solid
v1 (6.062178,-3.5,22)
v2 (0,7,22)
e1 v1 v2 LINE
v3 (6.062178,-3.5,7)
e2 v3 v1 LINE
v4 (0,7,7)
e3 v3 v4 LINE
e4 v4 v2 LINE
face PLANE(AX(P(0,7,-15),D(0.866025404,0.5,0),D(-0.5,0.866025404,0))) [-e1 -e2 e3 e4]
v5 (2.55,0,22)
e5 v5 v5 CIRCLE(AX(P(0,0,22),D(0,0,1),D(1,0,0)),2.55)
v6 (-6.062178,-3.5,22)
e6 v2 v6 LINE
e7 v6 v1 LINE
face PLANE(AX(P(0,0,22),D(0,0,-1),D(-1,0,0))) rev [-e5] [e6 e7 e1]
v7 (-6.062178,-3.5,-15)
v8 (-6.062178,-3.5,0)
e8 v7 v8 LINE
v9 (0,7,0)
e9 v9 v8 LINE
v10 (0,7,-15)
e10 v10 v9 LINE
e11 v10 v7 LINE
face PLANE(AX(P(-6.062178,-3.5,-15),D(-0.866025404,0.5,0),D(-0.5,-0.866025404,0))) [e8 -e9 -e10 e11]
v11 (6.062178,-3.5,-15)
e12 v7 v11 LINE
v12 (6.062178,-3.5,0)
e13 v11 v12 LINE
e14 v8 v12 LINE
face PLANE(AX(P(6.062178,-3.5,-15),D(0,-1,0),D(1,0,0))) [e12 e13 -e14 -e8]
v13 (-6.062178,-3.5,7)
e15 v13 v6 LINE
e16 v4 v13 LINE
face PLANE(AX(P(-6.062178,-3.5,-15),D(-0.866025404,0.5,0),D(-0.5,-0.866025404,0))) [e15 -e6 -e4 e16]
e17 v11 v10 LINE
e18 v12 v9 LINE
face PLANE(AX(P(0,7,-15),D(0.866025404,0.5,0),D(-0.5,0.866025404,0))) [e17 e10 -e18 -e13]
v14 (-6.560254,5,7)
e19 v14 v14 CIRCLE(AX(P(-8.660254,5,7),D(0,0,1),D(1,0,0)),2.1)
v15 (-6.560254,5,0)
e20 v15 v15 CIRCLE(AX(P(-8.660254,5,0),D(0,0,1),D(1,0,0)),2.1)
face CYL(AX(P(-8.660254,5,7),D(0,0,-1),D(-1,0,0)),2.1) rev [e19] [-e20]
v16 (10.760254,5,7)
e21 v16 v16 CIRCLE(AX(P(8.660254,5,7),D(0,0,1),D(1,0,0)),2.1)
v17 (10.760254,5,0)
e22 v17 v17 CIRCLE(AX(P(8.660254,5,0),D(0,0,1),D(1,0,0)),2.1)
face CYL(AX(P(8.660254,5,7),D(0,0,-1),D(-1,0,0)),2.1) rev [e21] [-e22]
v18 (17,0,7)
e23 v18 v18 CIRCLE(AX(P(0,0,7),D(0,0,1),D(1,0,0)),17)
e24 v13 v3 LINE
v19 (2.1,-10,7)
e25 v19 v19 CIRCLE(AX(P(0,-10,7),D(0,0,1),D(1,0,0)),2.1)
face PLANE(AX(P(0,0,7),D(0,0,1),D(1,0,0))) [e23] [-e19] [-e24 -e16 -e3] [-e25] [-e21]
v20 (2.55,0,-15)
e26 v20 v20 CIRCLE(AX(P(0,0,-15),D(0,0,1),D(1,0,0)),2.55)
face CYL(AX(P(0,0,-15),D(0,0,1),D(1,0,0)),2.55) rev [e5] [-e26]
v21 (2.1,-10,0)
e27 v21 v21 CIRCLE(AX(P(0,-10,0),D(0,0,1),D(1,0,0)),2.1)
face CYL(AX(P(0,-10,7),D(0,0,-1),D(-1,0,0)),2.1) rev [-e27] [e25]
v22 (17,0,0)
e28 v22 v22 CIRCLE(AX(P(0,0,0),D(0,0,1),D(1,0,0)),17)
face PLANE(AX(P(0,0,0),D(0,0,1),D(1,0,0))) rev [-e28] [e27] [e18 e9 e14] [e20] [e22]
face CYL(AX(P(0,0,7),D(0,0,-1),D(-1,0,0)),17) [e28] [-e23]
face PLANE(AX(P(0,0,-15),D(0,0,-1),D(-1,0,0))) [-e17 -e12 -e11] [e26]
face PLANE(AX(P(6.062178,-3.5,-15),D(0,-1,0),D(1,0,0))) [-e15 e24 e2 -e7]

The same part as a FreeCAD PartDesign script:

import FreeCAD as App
import Part
import Sketcher
Q = App.Units.Quantity

doc = App.newDocument("Part")
body = doc.addObject("PartDesign::Body", "Body")

sketch1 = body.newObject("Sketcher::SketchObject", "Sketch")
sketch1.AttachmentSupport = (doc.getObject("XY_Plane"), [""])
sketch1.MapMode = "FlatFace"
sketch1.addGeometry([
    Part.Circle(App.Vector(0, 0, 0), App.Vector(0, 0, 1), 17),
    Part.Circle(App.Vector(0, -10, 0), App.Vector(0, 0, 1), 2.1),
    Part.Circle(App.Vector(-8.7, 5, 0), App.Vector(0, 0, 1), 2.1),
    Part.Circle(App.Vector(8.7, 5, 0), App.Vector(0, 0, 1), 2.1),
], False)
sketch1.addConstraint([
    Sketcher.Constraint("Coincident", 0, 3, -1, 1),
    Sketcher.Constraint("Equal", 1, 2),
    Sketcher.Constraint("Equal", 2, 3),
    Sketcher.Constraint("Symmetric", 2, 3, 3, 3, -2),
    Sketcher.Constraint("PointOnObject", 1, 3, -2),
    Sketcher.Constraint("Diameter", 0, Q("34 mm")),
    Sketcher.Constraint("Diameter", 1, Q("4.2 mm")),
    Sketcher.Constraint("DistanceY", 1, 3, -1, 1, Q("10 mm")),
    Sketcher.Constraint("DistanceY", -1, 1, 2, 3, Q("5 mm")),
    Sketcher.Constraint("DistanceX", 2, 3, 3, 3, Q("17.320508 mm")),
])
pad1 = body.newObject("PartDesign::Pad", "Pad")
pad1.Profile = sketch1
pad1.Length = 7

sketch2 = body.newObject("Sketcher::SketchObject", "Sketch001")
sketch2.AttachmentSupport = (doc.getObject("XY_Plane"), [""])
sketch2.MapMode = "FlatFace"
sketch2.AttachmentOffset = App.Placement(App.Vector(0, 0, 7), App.Rotation())
sketch2.addGeometry([
    Part.LineSegment(App.Vector(6.1, -3.5, 0), App.Vector(0, 7, 0)),
    Part.LineSegment(App.Vector(0, 7, 0), App.Vector(-6.1, -3.5, 0)),
    Part.LineSegment(App.Vector(-6.1, -3.5, 0), App.Vector(6.1, -3.5, 0)),
    Part.Circle(App.Vector(0, 0, 0), App.Vector(0, 0, 1), 2.5),
], False)
sketch2.addConstraint([
    Sketcher.Constraint("Coincident", 0, 2, 1, 1),
    Sketcher.Constraint("Coincident", 1, 2, 2, 1),
    Sketcher.Constraint("Coincident", 2, 2, 0, 1),
    Sketcher.Constraint("Horizontal", 2),
    Sketcher.Constraint("Coincident", 3, 3, -1, 1),
    Sketcher.Constraint("PointOnObject", 0, 2, -2),
    Sketcher.Constraint("Equal", 0, 1),
    Sketcher.Constraint("Diameter", 3, Q("5.1 mm")),
    Sketcher.Constraint("Angle", 0, Q("120 deg")),
    Sketcher.Constraint("DistanceY", -1, 1, 0, 2, Q("7 mm")),
    Sketcher.Constraint("DistanceY", 1, 2, -1, 1, Q("3.5 mm")),
])
pad2 = body.newObject("PartDesign::Pad", "Pad001")
pad2.Profile = sketch2
pad2.Type = "TwoLengths"
pad2.Length = 15
pad2.Length2 = 22

sketch3 = body.newObject("Sketcher::SketchObject", "Sketch002")
sketch3.AttachmentSupport = (doc.getObject("XY_Plane"), [""])
sketch3.MapMode = "FlatFace"
sketch3.AttachmentOffset = App.Placement(App.Vector(0, 0, 7), App.Rotation())
sketch3.addGeometry(Part.Circle(App.Vector(0, 0, 0), App.Vector(0, 0, 1), 2.5), False)
sketch3.addConstraint([
    Sketcher.Constraint("Coincident", 0, 3, -1, 1),
    Sketcher.Constraint("Diameter", 0, Q("5.1 mm")),
])
pocket1 = body.newObject("PartDesign::Pocket", "Pocket")
pocket1.Profile = sketch3
pocket1.Type = "ThroughAll"

doc.recompute()
